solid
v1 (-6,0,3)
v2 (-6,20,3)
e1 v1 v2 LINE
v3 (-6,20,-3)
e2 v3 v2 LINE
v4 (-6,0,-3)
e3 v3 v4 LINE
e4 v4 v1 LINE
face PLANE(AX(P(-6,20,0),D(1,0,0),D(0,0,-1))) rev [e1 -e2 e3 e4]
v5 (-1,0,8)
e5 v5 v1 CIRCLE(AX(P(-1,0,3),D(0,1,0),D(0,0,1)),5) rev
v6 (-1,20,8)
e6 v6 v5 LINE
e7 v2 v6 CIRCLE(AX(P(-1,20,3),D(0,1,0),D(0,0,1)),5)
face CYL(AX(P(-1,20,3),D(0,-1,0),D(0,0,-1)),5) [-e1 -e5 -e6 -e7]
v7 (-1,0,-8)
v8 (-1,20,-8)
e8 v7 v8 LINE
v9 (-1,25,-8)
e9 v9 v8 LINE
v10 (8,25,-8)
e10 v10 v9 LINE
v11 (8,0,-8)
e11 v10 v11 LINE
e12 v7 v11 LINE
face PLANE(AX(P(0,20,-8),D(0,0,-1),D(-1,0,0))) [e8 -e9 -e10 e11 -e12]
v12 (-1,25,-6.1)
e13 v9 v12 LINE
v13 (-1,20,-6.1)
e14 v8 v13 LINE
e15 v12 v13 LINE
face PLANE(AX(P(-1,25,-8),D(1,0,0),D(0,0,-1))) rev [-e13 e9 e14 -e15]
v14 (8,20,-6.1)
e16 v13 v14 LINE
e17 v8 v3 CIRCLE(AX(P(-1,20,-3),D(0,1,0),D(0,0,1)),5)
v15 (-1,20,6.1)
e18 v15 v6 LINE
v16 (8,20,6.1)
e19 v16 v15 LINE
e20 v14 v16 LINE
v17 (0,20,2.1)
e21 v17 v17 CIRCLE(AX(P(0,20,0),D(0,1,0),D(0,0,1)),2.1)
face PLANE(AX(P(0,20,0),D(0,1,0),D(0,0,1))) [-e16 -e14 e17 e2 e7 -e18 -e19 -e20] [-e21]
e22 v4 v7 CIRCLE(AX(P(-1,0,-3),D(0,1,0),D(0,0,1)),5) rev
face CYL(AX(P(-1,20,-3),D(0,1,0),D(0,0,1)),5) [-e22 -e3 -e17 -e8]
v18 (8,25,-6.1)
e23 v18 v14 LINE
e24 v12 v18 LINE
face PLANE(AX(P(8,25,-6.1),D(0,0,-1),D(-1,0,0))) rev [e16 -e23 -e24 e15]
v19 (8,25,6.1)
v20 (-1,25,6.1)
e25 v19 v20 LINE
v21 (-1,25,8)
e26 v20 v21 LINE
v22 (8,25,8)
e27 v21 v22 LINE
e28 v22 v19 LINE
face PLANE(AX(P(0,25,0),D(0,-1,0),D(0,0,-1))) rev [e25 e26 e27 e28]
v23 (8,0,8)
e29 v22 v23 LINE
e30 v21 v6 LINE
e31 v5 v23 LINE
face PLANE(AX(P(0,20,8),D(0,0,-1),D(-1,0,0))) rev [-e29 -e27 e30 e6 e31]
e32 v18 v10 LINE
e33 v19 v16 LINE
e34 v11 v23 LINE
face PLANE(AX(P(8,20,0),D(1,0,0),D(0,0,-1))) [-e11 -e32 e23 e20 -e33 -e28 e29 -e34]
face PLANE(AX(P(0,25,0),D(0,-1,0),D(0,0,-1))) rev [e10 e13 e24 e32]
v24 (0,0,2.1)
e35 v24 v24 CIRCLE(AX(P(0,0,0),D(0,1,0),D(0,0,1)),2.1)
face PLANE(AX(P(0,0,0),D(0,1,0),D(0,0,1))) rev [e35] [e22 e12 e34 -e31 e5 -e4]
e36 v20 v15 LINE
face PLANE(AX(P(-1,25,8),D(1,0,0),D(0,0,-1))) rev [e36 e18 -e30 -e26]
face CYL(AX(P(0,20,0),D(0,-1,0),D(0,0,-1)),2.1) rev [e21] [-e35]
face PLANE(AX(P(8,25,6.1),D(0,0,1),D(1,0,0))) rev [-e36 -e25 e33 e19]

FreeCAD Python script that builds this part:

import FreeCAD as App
import Part
import Sketcher
from FreeCAD import Vector


def edges_at(feature, points):
    """Names of the edges that pass closest to the given points."""
    edges = feature.Shape.Edges
    near = lambda p: min(range(len(edges)), key=lambda i: edges[i].distToShape(Part.Vertex(*p))[0])
    return sorted({f"Edge{near(p) + 1}" for p in points})

doc = App.newDocument("Part")
body = doc.addObject("PartDesign::Body", "Body")

# Sketch on XZ plane
sketch1 = body.newObject("Sketcher::SketchObject", "Sketch")
sketch1.AttachmentSupport = (doc.getObject("XZ_Plane"), [""])
sketch1.MapMode = "FlatFace"
sketch1.addGeometry(Part.LineSegment(Vector(-6, -8, 0), Vector(-6, 8, 0)), False)
sketch1.addGeometry(Part.LineSegment(Vector(-6, 8, 0), Vector(8, 8, 0)), False)
sketch1.addGeometry(Part.LineSegment(Vector(8, 8, 0), Vector(8, -8, 0)), False)
sketch1.addGeometry(Part.LineSegment(Vector(8, -8, 0), Vector(-6, -8, 0)), False)
sketch1.addGeometry(Part.Circle(Vector(0, 0, 0), Vector(0, 0, 1), 2.1), False)
sketch1.addConstraint(Sketcher.Constraint("Coincident", 0, 2, 1, 1))
sketch1.addConstraint(Sketcher.Constraint("Coincident", 1, 2, 2, 1))
sketch1.addConstraint(Sketcher.Constraint("Coincident", 2, 2, 3, 1))
sketch1.addConstraint(Sketcher.Constraint("Coincident", 3, 2, 0, 1))
sketch1.addConstraint(Sketcher.Constraint("Vertical", 0))
sketch1.addConstraint(Sketcher.Constraint("Horizontal", 1))
sketch1.addConstraint(Sketcher.Constraint("Vertical", 2))
sketch1.addConstraint(Sketcher.Constraint("Horizontal", 3))
sketch1.addConstraint(Sketcher.Constraint("Coincident", 4, 3, -1, 1))
sketch1.addConstraint(Sketcher.Constraint("Diameter", 4, 4.2))
sketch1.addConstraint(Sketcher.Constraint("DistanceX", 1, 1, 1, 2, 14.0))
sketch1.addConstraint(Sketcher.Constraint("DistanceY", 0, 1, 0, 2, 16.0))
sketch1.addConstraint(Sketcher.Constraint("DistanceX", 0, 2, -1, 1, 6.0))
sketch1.addConstraint(Sketcher.Constraint("DistanceY", -1, 1, 0, 2, 8.0))
pad1 = body.newObject("PartDesign::Pad", "Pad")
pad1.Profile = sketch1
pad1.Length = 20
pad1.Reversed = True
doc.recompute()

fillet = body.newObject("PartDesign::Fillet", "Fillet")
fillet.Base = (pad1, edges_at(pad1, [(-6, 10, 8), (-6, 10, -8)]))
fillet.Radius = 5

# Sketch on XZ plane
sketch2 = body.newObject("Sketcher::SketchObject", "Sketch001")
sketch2.AttachmentSupport = (doc.getObject("XZ_Plane"), [""])
sketch2.MapMode = "FlatFace"
sketch2.AttachmentOffset = App.Placement(Vector(0, 0, -20), App.Rotation())
sketch2.addGeometry(Part.LineSegment(Vector(-1, -8, 0), Vector(-1, -6.1, 0)), False)
sketch2.addGeometry(Part.LineSegment(Vector(-1, -6.1, 0), Vector(8, -6.1, 0)), False)
sketch2.addGeometry(Part.LineSegment(Vector(8, -6.1, 0), Vector(8, -8, 0)), False)
sketch2.addGeometry(Part.LineSegment(Vector(8, -8, 0), Vector(-1, -8, 0)), False)
sketch2.addGeometry(Part.LineSegment(Vector(-1, 6.1, 0), Vector(-1, 8, 0)), False)
sketch2.addGeometry(Part.LineSegment(Vector(-1, 8, 0), Vector(8, 8, 0)), False)
sketch2.addGeometry(Part.LineSegment(Vector(8, 8, 0), Vector(8, 6.1, 0)), False)
sketch2.addGeometry(Part.LineSegment(Vector(8, 6.1, 0), Vector(-1, 6.1, 0)), False)
sketch2.addConstraint(Sketcher.Constraint("Coincident", 0, 2, 1, 1))
sketch2.addConstraint(Sketcher.Constraint("Coincident", 1, 2, 2, 1))
sketch2.addConstraint(Sketcher.Constraint("Coincident", 2, 2, 3, 1))
sketch2.addConstraint(Sketcher.Constraint("Coincident", 3, 2, 0, 1))
sketch2.addConstraint(Sketcher.Constraint("Coincident", 4, 2, 5, 1))
sketch2.addConstraint(Sketcher.Constraint("Coincident", 5, 2, 6, 1))
sketch2.addConstraint(Sketcher.Constraint("Coincident", 6, 2, 7, 1))
sketch2.addConstraint(Sketcher.Constraint("Coincident", 7, 2, 4, 1))
sketch2.addConstraint(Sketcher.Constraint("Vertical", 0))
sketch2.addConstraint(Sketcher.Constraint("Horizontal", 1))
sketch2.addConstraint(Sketcher.Constraint("Vertical", 2))
sketch2.addConstraint(Sketcher.Constraint("Horizontal", 3))
sketch2.addConstraint(Sketcher.Constraint("Vertical", 4))
sketch2.addConstraint(Sketcher.Constraint("Horizontal", 5))
sketch2.addConstraint(Sketcher.Constraint("Vertical", 6))
sketch2.addConstraint(Sketcher.Constraint("Horizontal", 7))
sketch2.addConstraint(Sketcher.Constraint("Symmetric", 3, 2, 4, 2, -1))
sketch2.addConstraint(Sketcher.Constraint("Symmetric", 1, 2, 6, 2, -1))
sketch2.addConstraint(Sketcher.Constraint("DistanceX", 1, 1, 1, 2, 9.0))
sketch2.addConstraint(Sketcher.Constraint("DistanceY", 0, 1, 0, 2, 1.9))
sketch2.addConstraint(Sketcher.Constraint("DistanceX", 0, 2, -1, 1, 1.0))
sketch2.addConstraint(Sketcher.Constraint("DistanceY", 2, 2, -1, 1, 8.0))
pad2 = body.newObject("PartDesign::Pad", "Pad001")
pad2.Profile = sketch2
pad2.Length = 5
pad2.Reversed = True

doc.recompute()
